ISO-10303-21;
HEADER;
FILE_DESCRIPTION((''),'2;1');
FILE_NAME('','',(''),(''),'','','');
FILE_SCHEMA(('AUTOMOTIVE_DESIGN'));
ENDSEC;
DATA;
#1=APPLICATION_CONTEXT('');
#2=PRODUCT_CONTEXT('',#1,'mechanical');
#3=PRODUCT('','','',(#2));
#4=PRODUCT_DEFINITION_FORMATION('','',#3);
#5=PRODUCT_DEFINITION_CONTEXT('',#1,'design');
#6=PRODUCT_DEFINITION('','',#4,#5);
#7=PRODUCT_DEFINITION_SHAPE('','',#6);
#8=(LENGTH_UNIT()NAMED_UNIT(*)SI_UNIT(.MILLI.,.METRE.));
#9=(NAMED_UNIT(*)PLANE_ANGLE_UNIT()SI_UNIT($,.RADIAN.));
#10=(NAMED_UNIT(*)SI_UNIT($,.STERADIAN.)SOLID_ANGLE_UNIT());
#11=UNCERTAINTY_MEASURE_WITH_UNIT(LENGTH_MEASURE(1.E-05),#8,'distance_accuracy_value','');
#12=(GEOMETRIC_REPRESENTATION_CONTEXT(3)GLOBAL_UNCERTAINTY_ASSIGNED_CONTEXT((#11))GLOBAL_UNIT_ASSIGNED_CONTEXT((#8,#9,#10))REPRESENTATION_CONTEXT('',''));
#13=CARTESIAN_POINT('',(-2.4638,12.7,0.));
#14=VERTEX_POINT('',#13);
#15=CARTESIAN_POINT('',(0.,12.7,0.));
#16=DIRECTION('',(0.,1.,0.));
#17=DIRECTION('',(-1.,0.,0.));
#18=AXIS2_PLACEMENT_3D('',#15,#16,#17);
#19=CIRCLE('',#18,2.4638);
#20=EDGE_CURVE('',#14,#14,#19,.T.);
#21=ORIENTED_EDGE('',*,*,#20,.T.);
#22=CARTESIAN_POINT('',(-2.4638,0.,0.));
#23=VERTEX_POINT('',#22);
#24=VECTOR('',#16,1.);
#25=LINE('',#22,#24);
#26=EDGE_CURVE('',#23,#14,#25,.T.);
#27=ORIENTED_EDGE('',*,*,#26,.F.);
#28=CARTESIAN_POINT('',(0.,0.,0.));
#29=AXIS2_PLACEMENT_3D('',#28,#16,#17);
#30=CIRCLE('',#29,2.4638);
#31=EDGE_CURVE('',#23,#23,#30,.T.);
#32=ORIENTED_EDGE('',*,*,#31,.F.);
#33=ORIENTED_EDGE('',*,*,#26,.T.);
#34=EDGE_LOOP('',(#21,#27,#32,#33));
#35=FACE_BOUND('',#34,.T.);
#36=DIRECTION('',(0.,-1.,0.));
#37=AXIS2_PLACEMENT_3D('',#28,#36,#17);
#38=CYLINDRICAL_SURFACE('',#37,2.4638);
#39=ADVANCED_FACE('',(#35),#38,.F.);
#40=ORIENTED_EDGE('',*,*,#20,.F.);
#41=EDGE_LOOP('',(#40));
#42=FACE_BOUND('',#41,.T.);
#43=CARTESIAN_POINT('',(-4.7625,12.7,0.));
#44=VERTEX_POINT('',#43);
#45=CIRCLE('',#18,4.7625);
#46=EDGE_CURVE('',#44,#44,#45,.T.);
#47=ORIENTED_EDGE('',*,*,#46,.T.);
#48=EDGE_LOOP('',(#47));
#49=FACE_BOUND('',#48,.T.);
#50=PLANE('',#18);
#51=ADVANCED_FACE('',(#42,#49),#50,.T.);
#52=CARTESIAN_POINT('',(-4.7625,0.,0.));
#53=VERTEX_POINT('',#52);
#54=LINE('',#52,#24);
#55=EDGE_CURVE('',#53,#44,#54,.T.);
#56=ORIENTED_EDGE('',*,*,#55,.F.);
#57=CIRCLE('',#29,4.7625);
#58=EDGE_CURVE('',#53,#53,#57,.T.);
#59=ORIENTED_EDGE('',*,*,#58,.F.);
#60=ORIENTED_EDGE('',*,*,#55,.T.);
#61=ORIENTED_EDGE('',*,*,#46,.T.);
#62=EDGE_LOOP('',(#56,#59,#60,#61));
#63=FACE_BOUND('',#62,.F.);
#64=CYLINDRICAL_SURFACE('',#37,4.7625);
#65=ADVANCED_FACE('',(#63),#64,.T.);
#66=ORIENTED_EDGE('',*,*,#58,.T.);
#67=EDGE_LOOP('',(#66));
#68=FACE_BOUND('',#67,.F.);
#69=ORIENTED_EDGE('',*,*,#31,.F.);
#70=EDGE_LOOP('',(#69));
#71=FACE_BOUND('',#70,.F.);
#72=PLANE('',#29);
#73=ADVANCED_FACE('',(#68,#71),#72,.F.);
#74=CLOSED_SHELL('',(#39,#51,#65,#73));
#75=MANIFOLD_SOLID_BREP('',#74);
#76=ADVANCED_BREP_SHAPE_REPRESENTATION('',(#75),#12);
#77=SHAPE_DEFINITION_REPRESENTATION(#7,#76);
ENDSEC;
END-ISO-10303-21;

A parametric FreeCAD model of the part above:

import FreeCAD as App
import Part
import Sketcher
Q = App.Units.Quantity

doc = App.newDocument("Part")
body = doc.addObject("PartDesign::Body", "Body")

# Sketch on XZ plane
sketch1 = body.newObject("Sketcher::SketchObject", "Sketch")
sketch1.AttachmentSupport = (doc.getObject("XZ_Plane"), [""])
sketch1.MapMode = "FlatFace"
sketch1.addGeometry([
    Part.Circle(App.Vector(0, 0, 0), App.Vector(0, 0, 1), 4.7625),
    Part.Circle(App.Vector(0, 0, 0), App.Vector(0, 0, 1), 2.4638),
], False)
sketch1.addConstraint([
    Sketcher.Constraint("Coincident", 0, 3, -1, 1),
    Sketcher.Constraint("Coincident", 1, 3, -1, 1),
    Sketcher.Constraint("Diameter", 0, Q("0.375 in")),
    Sketcher.Constraint("Diameter", 1, Q("0.194 in")),
])
pad1 = body.newObject("PartDesign::Pad", "Pad")
pad1.Profile = sketch1
pad1.Length = Q("0.5 in")
pad1.Reversed = True

doc.recompute()
